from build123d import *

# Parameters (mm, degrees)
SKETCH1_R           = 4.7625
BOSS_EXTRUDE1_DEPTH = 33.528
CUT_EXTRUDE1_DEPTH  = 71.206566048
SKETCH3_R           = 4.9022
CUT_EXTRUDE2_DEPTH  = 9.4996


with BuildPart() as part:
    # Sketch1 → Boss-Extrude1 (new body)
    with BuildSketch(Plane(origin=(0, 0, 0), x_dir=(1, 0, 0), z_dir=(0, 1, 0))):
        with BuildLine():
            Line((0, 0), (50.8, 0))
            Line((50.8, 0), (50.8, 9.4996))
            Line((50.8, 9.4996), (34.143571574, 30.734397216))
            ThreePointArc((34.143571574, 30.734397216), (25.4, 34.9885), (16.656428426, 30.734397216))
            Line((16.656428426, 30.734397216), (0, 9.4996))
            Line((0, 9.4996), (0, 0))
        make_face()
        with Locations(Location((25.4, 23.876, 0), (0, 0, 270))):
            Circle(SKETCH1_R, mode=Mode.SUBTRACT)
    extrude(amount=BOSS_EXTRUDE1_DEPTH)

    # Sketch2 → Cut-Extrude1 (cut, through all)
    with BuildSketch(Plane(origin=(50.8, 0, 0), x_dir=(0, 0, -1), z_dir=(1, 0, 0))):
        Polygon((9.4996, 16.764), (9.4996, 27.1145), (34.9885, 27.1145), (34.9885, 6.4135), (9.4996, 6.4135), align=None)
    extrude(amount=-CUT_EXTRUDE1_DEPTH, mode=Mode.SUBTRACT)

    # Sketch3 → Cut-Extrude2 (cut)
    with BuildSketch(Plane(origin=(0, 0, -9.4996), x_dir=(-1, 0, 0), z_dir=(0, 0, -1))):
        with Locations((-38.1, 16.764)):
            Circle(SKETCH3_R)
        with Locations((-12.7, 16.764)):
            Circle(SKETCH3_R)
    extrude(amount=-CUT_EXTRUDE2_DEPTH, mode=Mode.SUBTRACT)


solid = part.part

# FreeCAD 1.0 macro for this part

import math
import FreeCAD as App
import Part
import Sketcher
from FreeCAD import Vector
Q = App.Units.Quantity

doc = App.newDocument("Part")
body = doc.addObject("PartDesign::Body", "Body")

sketch1 = body.newObject("Sketcher::SketchObject", "Sketch")
sketch1.AttachmentSupport = (doc.getObject("XZ_Plane"), [""])
sketch1.MapMode = "FlatFace"
sketch1.addGeometry(Part.LineSegment(Vector(0, 0, 0), Vector(50.8, 0, 0)), False)
sketch1.addGeometry(Part.LineSegment(Vector(50.8, 0, 0), Vector(50.8, -9.5, 0)), False)
sketch1.addGeometry(Part.LineSegment(Vector(50.8, -9.5, 0), Vector(34.1, -30.7, 0)), False)
sketch1.addGeometry(Part.ArcOfCircle(Part.Circle(Vector(25.4, -23.9, 0), Vector(0, 0, 1), 11.1), math.radians(-142), math.radians(-38)), False)
sketch1.addGeometry(Part.LineSegment(Vector(16.7, -30.7, 0), Vector(0, -9.5, 0)), False)
sketch1.addGeometry(Part.LineSegment(Vector(0, -9.5, 0), Vector(0, 0, 0)), False)
sketch1.addGeometry(Part.Circle(Vector(25.4, -23.9, 0), Vector(0, 0, 1), 4.8), False)
sketch1.addConstraint(Sketcher.Constraint("Coincident", 0, 2, 1, 1))
sketch1.addConstraint(Sketcher.Constraint("Coincident", 1, 2, 2, 1))
sketch1.addConstraint(Sketcher.Constraint("Tangent", 2, 2, 3, 2))
sketch1.addConstraint(Sketcher.Constraint("Tangent", 3, 1, 4, 1))
sketch1.addConstraint(Sketcher.Constraint("Coincident", 4, 2, 5, 1))
sketch1.addConstraint(Sketcher.Constraint("Coincident", 5, 2, 0, 1))
sketch1.addConstraint(Sketcher.Constraint("Horizontal", 0))
sketch1.addConstraint(Sketcher.Constraint("Vertical", 1))
sketch1.addConstraint(Sketcher.Constraint("Vertical", 5))
sketch1.addConstraint(Sketcher.Constraint("Coincident", 5, 2, -1, 1))
sketch1.addConstraint(Sketcher.Constraint("Coincident", 6, 3, 3, 3))
sketch1.addConstraint(Sketcher.Constraint("Horizontal", 2, 2, 3, 1))
sketch1.addConstraint(Sketcher.Constraint("Horizontal", 1, 2, 4, 2))
sketch1.addConstraint(Sketcher.Constraint("DistanceX", 0, 1, 0, 2, Q("2 in")))
sketch1.addConstraint(Sketcher.Constraint("Diameter", 6, Q("0.375 in")))
sketch1.addConstraint(Sketcher.Constraint("Radius", 3, Q("0.4375 in")))
sketch1.addConstraint(Sketcher.Constraint("DistanceY", 1, 2, 1, 1, Q("0.374 in")))
sketch1.addConstraint(Sketcher.Constraint("DistanceY", 3, 3, -1, 1, Q("0.94 in")))
pad1 = body.newObject("PartDesign::Pad", "Pad")
pad1.Profile = sketch1
pad1.Length = Q("1.32 in")
pad1.Reversed = True

sketch2 = body.newObject("Sketcher::SketchObject", "Sketch001")
sketch2.AttachmentSupport = (doc.getObject("YZ_Plane"), [""])
sketch2.MapMode = "FlatFace"
sketch2.AttachmentOffset = App.Placement(Vector(0, 0, 2 * 25.4), App.Rotation())
sketch2.addGeometry(Part.LineSegment(Vector(27, -9, 0), Vector(6, -9, 0)), False)
sketch2.addGeometry(Part.LineSegment(Vector(6, -9, 0), Vector(6, -35, 0)), False)
sketch2.addGeometry(Part.LineSegment(Vector(6, -35, 0), Vector(27, -35, 0)), False)
sketch2.addGeometry(Part.LineSegment(Vector(27, -35, 0), Vector(27, -9, 0)), False)
sketch2.addConstraint(Sketcher.Constraint("Coincident", 0, 2, 1, 1))
sketch2.addConstraint(Sketcher.Constraint("Coincident", 1, 2, 2, 1))
sketch2.addConstraint(Sketcher.Constraint("Coincident", 2, 2, 3, 1))
sketch2.addConstraint(Sketcher.Constraint("Coincident", 3, 2, 0, 1))
sketch2.addConstraint(Sketcher.Constraint("Horizontal", 0))
sketch2.addConstraint(Sketcher.Constraint("Vertical", 1))
sketch2.addConstraint(Sketcher.Constraint("Horizontal", 2))
sketch2.addConstraint(Sketcher.Constraint("Vertical", 3))
sketch2.addConstraint(Sketcher.Constraint("DistanceX", 0, 2, 0, 1, Q("0.815 in")))
sketch2.addConstraint(Sketcher.Constraint("DistanceY", 1, 2, 1, 1, Q("1.0035 in")))
sketch2.addConstraint(Sketcher.Constraint("DistanceY", 0, 2, -1, 1, Q("0.374 in")))
sketch2.addConstraint(Sketcher.Constraint("DistanceX", -1, 1, 0, 2, Q("0.2525 in")))
pocket1 = body.newObject("PartDesign::Pocket", "Pocket")
pocket1.Profile = sketch2
pocket1.Type = "ThroughAll"

sketch3 = body.newObject("Sketcher::SketchObject", "Sketch002")
sketch3.AttachmentSupport = (doc.getObject("XY_Plane"), [""])
sketch3.MapMode = "FlatFace"
sketch3.AttachmentOffset = App.Placement(Vector(0, 0, -0.374 * 25.4), App.Rotation())
sketch3.addGeometry(Part.Circle(Vector(38.1, 16.8, 0), Vector(0, 0, 1), 4.9), False)
sketch3.addGeometry(Part.Circle(Vector(12.7, 16.8, 0), Vector(0, 0, 1), 4.9), False)
sketch3.addConstraint(Sketcher.Constraint("Equal", 0, 1))
sketch3.addConstraint(Sketcher.Constraint("Horizontal", 0, 3, 1, 3))
sketch3.addConstraint(Sketcher.Constraint("Diameter", 0, Q("0.386 in")))
sketch3.addConstraint(Sketcher.Constraint("DistanceX", 1, 3, 0, 3, Q("1 in")))
sketch3.addConstraint(Sketcher.Constraint("DistanceX", -1, 1, 0, 3, Q("1.5 in")))
sketch3.addConstraint(Sketcher.Constraint("DistanceY", -1, 1, 0, 3, Q("0.66 in")))
pocket2 = body.newObject("PartDesign::Pocket", "Pocket001")
pocket2.Profile = sketch3
pocket2.Length = Q("0.374 in")
pocket2.Reversed = True

doc.recompute()
